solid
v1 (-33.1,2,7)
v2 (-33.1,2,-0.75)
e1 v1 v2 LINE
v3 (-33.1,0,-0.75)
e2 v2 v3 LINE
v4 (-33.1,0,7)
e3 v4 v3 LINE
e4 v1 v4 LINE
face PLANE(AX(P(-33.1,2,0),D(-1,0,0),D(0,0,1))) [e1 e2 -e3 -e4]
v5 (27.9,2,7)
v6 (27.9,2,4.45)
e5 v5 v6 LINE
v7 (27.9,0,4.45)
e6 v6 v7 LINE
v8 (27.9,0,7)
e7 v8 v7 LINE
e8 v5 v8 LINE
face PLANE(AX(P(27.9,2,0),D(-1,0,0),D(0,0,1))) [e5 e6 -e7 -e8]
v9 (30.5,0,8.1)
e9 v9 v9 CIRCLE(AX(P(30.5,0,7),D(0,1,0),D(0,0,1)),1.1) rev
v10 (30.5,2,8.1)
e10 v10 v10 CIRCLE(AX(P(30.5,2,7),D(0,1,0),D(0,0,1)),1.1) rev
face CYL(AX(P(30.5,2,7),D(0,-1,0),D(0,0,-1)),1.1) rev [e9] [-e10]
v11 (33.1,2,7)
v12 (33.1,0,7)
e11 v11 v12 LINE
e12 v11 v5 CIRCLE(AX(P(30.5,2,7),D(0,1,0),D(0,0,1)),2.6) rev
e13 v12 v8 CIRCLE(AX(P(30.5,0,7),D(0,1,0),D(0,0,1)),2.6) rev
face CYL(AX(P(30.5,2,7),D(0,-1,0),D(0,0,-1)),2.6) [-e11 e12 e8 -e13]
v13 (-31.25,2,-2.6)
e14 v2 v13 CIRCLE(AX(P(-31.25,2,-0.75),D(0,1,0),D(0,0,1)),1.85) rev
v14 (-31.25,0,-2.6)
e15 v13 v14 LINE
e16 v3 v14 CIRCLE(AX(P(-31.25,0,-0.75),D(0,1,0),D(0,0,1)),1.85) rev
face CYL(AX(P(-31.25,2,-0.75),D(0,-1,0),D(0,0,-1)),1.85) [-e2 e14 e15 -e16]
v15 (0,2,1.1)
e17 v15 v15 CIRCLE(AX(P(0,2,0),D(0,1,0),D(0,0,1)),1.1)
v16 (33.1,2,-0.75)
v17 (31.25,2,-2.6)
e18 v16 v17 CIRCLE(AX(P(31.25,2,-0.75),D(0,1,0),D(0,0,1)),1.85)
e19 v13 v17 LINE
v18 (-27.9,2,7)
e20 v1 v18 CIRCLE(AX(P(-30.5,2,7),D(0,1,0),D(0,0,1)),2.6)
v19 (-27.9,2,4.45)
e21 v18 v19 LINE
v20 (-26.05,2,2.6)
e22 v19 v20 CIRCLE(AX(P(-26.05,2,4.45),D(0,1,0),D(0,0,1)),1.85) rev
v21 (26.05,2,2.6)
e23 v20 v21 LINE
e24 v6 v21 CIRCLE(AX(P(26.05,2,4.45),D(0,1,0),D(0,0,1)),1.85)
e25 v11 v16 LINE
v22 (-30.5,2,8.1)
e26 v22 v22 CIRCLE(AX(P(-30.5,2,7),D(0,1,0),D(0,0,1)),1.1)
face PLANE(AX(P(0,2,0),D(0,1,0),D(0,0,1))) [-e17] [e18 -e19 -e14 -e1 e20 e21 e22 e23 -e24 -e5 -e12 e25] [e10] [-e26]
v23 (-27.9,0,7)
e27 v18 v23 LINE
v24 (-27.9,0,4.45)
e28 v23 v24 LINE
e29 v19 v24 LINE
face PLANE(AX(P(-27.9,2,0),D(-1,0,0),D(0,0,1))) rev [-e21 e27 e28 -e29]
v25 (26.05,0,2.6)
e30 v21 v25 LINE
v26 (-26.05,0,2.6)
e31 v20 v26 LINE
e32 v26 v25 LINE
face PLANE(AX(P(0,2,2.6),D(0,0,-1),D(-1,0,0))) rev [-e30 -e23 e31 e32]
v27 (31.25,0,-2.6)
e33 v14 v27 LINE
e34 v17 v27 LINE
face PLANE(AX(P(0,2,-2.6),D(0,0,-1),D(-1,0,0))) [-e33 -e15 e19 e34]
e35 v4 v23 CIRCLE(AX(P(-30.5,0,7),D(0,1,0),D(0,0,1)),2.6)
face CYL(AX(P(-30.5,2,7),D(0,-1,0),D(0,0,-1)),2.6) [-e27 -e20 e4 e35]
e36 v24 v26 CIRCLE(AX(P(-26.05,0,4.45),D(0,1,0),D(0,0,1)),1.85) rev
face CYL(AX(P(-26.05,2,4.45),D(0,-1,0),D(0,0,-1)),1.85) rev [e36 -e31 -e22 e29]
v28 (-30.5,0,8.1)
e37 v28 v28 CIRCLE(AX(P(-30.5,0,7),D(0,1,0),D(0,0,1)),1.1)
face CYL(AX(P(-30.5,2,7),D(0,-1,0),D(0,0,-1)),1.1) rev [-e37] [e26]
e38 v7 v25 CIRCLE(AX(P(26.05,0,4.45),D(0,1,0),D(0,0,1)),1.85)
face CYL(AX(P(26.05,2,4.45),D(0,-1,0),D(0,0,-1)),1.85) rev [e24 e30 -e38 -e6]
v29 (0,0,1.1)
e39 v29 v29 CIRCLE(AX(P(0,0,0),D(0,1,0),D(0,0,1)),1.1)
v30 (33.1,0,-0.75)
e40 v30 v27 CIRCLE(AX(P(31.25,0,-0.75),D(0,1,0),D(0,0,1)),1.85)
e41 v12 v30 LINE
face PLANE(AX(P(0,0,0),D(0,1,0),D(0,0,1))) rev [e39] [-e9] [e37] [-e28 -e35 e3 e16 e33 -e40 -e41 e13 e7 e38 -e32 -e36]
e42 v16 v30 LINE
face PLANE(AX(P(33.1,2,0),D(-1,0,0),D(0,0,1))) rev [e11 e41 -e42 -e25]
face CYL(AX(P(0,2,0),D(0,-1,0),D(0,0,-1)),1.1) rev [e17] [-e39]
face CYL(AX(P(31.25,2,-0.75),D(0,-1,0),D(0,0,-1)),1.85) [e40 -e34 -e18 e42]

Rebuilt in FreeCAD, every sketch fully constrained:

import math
import FreeCAD as App
import Part
import Sketcher

V = App.Vector

doc = App.newDocument("Part")
body = doc.addObject("PartDesign::Body", "Body")

sketch1 = doc.addObject("Sketcher::SketchObject", "Sketch")
body.addObject(sketch1)
sketch1.AttachmentSupport = (doc.XZ_Plane, [""])
sketch1.MapMode = "FlatFace"
sketch1.addGeometry(Part.LineSegment(V(-33.1, -0.8, 0), V(-33.1, 7, 0)), False)
sketch1.addGeometry(Part.ArcOfCircle(Part.Circle(V(-30.5, 7, 0), V(0, 0, 1), 2.6), math.radians(0), math.radians(180)), False)
sketch1.addGeometry(Part.LineSegment(V(-27.9, 7, 0), V(-27.9, 4.5, 0)), False)
sketch1.addGeometry(Part.ArcOfCircle(Part.Circle(V(-26, 4.5, 0), V(0, 0, 1), 1.9), math.radians(-180), math.radians(-90)), False)
sketch1.addGeometry(Part.LineSegment(V(-26.1, 2.6, 0), V(26.1, 2.6, 0)), False)
sketch1.addGeometry(Part.ArcOfCircle(Part.Circle(V(26, 4.5, 0), V(0, 0, 1), 1.9), math.radians(-90), math.radians(0)), False)
sketch1.addGeometry(Part.LineSegment(V(27.9, 4.5, 0), V(27.9, 7, 0)), False)
sketch1.addGeometry(Part.ArcOfCircle(Part.Circle(V(30.5, 7, 0), V(0, 0, 1), 2.6), math.radians(0), math.radians(180)), False)
sketch1.addGeometry(Part.LineSegment(V(33.1, 7, 0), V(33.1, -0.8, 0)), False)
sketch1.addGeometry(Part.ArcOfCircle(Part.Circle(V(31.2, -0.7, 0), V(0, 0, 1), 1.9), math.radians(-90), math.radians(0)), False)
sketch1.addGeometry(Part.LineSegment(V(31.2, -2.6, 0), V(-31.2, -2.6, 0)), False)
sketch1.addGeometry(Part.ArcOfCircle(Part.Circle(V(-31.2, -0.7, 0), V(0, 0, 1), 1.9), math.radians(-180), math.radians(-90)), False)
sketch1.addGeometry(Part.Circle(V(-30.5, 7, 0), V(0, 0, 1), 1.1), False)
sketch1.addGeometry(Part.Circle(V(0, 0, 0), V(0, 0, 1), 1.1), False)
sketch1.addGeometry(Part.Circle(V(30.5, 7, 0), V(0, 0, 1), 1.1), False)
sketch1.addConstraint(Sketcher.Constraint("Tangent", 0, 2, 1, 2))
sketch1.addConstraint(Sketcher.Constraint("Tangent", 1, 1, 2, 1))
sketch1.addConstraint(Sketcher.Constraint("Tangent", 2, 2, 3, 1))
sketch1.addConstraint(Sketcher.Constraint("Tangent", 3, 2, 4, 1))
sketch1.addConstraint(Sketcher.Constraint("Tangent", 4, 2, 5, 1))
sketch1.addConstraint(Sketcher.Constraint("Tangent", 5, 2, 6, 1))
sketch1.addConstraint(Sketcher.Constraint("Tangent", 6, 2, 7, 2))
sketch1.addConstraint(Sketcher.Constraint("Tangent", 7, 1, 8, 1))
sketch1.addConstraint(Sketcher.Constraint("Tangent", 8, 2, 9, 2))
sketch1.addConstraint(Sketcher.Constraint("Tangent", 9, 1, 10, 1))
sketch1.addConstraint(Sketcher.Constraint("Tangent", 10, 2, 11, 2))
sketch1.addConstraint(Sketcher.Constraint("Tangent", 11, 1, 0, 1))
sketch1.addConstraint(Sketcher.Constraint("Vertical", 0))
sketch1.addConstraint(Sketcher.Constraint("Vertical", 2))
sketch1.addConstraint(Sketcher.Constraint("Horizontal", 4))
sketch1.addConstraint(Sketcher.Constraint("Vertical", 6))
sketch1.addConstraint(Sketcher.Constraint("Vertical", 8))
sketch1.addConstraint(Sketcher.Constraint("Horizontal", 10))
sketch1.addConstraint(Sketcher.Constraint("Coincident", 13, 3, -1, 1))
sketch1.addConstraint(Sketcher.Constraint("Coincident", 12, 3, 1, 3))
sketch1.addConstraint(Sketcher.Constraint("Coincident", 14, 3, 7, 3))
sketch1.addConstraint(Sketcher.Constraint("Equal", 3, 5))
sketch1.addConstraint(Sketcher.Constraint("Equal", 1, 7))
sketch1.addConstraint(Sketcher.Constraint("Equal", 5, 9))
sketch1.addConstraint(Sketcher.Constraint("Equal", 9, 11))
sketch1.addConstraint(Sketcher.Constraint("Equal", 12, 13))
sketch1.addConstraint(Sketcher.Constraint("Equal", 13, 14))
sketch1.addConstraint(Sketcher.Constraint("Symmetric", 1, 3, 7, 3, -2))
sketch1.addConstraint(Sketcher.Constraint("Diameter", 12, 2.2))
sketch1.addConstraint(Sketcher.Constraint("Radius", 1, 2.6))
sketch1.addConstraint(Sketcher.Constraint("Radius", 3, 1.85))
sketch1.addConstraint(Sketcher.Constraint("DistanceX", 4, 1, 4, 2, 52.1))
sketch1.addConstraint(Sketcher.Constraint("DistanceY", -1, 1, 1, 3, 7.0))
sketch1.addConstraint(Sketcher.Constraint("DistanceY", 0, 1, 0, 2, 7.75))
sketch1.addConstraint(Sketcher.Constraint("DistanceY", 2, 2, 2, 1, 2.55))
pad1 = doc.addObject("PartDesign::Pad", "Pad")
body.addObject(pad1)
pad1.Profile = sketch1
pad1.Length = 2
pad1.Reversed = True

doc.recompute()
